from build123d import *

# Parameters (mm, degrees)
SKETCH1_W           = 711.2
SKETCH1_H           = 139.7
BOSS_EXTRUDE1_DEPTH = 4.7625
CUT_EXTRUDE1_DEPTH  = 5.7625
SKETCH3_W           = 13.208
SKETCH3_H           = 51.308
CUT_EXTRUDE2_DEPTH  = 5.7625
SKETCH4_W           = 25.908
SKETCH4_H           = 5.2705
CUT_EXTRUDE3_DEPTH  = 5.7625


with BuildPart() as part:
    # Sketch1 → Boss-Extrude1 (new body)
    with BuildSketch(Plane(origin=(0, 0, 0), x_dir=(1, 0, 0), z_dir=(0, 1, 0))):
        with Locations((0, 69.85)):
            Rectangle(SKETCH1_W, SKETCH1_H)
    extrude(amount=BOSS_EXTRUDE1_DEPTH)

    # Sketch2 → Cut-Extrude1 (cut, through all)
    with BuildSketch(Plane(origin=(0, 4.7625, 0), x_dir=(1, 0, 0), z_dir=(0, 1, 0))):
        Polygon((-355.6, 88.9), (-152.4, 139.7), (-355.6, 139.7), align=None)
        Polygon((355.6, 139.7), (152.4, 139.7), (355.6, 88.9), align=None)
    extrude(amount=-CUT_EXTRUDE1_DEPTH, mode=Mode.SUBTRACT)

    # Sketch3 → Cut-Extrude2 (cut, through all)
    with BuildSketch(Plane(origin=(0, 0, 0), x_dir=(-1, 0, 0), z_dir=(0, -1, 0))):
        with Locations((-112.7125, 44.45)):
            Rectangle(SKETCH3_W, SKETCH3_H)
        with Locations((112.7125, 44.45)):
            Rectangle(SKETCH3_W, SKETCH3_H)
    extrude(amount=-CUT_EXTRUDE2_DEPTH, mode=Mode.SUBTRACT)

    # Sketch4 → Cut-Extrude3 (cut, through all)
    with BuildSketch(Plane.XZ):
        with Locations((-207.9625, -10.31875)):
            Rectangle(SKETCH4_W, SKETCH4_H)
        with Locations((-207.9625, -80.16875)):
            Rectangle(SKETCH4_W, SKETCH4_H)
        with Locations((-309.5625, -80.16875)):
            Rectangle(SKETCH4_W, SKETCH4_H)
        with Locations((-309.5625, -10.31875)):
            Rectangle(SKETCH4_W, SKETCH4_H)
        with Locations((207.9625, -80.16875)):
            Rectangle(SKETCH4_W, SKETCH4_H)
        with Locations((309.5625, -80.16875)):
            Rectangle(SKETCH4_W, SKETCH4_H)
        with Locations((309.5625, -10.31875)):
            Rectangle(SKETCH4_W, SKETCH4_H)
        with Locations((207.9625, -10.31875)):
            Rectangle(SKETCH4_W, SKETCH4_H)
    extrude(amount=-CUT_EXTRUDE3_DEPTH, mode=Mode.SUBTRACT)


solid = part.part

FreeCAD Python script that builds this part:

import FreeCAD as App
import Part
import Sketcher
Q = App.Units.Quantity

doc = App.newDocument("Part")
body = doc.addObject("PartDesign::Body", "Body")

sketch1 = body.newObject("Sketcher::SketchObject", "Sketch")
sketch1.AttachmentSupport = (doc.getObject("XZ_Plane"), [""])
sketch1.MapMode = "FlatFace"
sketch1.addGeometry(Part.LineSegment(App.Vector(-355.6, -139.7, 0), App.Vector(-355.6, 0, 0)), False)
sketch1.addGeometry(Part.LineSegment(App.Vector(-355.6, 0, 0), App.Vector(355.6, 0, 0)), False)
sketch1.addGeometry(Part.LineSegment(App.Vector(355.6, 0, 0), App.Vector(355.6, -139.7, 0)), False)
sketch1.addGeometry(Part.LineSegment(App.Vector(355.6, -139.7, 0), App.Vector(-355.6, -139.7, 0)), False)
sketch1.addConstraint(Sketcher.Constraint("Coincident", 0, 2, 1, 1))
sketch1.addConstraint(Sketcher.Constraint("Coincident", 1, 2, 2, 1))
sketch1.addConstraint(Sketcher.Constraint("Coincident", 2, 2, 3, 1))
sketch1.addConstraint(Sketcher.Constraint("Coincident", 3, 2, 0, 1))
sketch1.addConstraint(Sketcher.Constraint("Vertical", 0))
sketch1.addConstraint(Sketcher.Constraint("Horizontal", 1))
sketch1.addConstraint(Sketcher.Constraint("Vertical", 2))
sketch1.addConstraint(Sketcher.Constraint("Horizontal", 3))
sketch1.addConstraint(Sketcher.Constraint("Symmetric", 0, 2, 1, 2, -1, 1))
sketch1.addConstraint(Sketcher.Constraint("DistanceX", 1, 1, 1, 2, Q("28 in")))
sketch1.addConstraint(Sketcher.Constraint("DistanceY", 0, 1, 0, 2, Q("5.5 in")))
pad1 = body.newObject("PartDesign::Pad", "Pad")
pad1.Profile = sketch1
pad1.Length = Q("0.1875 in")
pad1.Reversed = True

sketch2 = body.newObject("Sketcher::SketchObject", "Sketch001")
sketch2.AttachmentSupport = (doc.getObject("XZ_Plane"), [""])
sketch2.MapMode = "FlatFace"
sketch2.AttachmentOffset = App.Placement(App.Vector(0, 0, -0.1875 * 25.4), App.Rotation())
sketch2.addGeometry(Part.LineSegment(App.Vector(-355.6, -88.9, 0), App.Vector(-152.4, -139.7, 0)), False)
sketch2.addGeometry(Part.LineSegment(App.Vector(-152.4, -139.7, 0), App.Vector(-355.6, -139.7, 0)), False)
sketch2.addGeometry(Part.LineSegment(App.Vector(-355.6, -139.7, 0), App.Vector(-355.6, -88.9, 0)), False)
sketch2.addGeometry(Part.LineSegment(App.Vector(355.6, -139.7, 0), App.Vector(152.4, -139.7, 0)), False)
sketch2.addGeometry(Part.LineSegment(App.Vector(152.4, -139.7, 0), App.Vector(355.6, -88.9, 0)), False)
sketch2.addGeometry(Part.LineSegment(App.Vector(355.6, -88.9, 0), App.Vector(355.6, -139.7, 0)), False)
sketch2.addConstraint(Sketcher.Constraint("Coincident", 0, 2, 1, 1))
sketch2.addConstraint(Sketcher.Constraint("Coincident", 1, 2, 2, 1))
sketch2.addConstraint(Sketcher.Constraint("Coincident", 2, 2, 0, 1))
sketch2.addConstraint(Sketcher.Constraint("Coincident", 3, 2, 4, 1))
sketch2.addConstraint(Sketcher.Constraint("Coincident", 4, 2, 5, 1))
sketch2.addConstraint(Sketcher.Constraint("Coincident", 5, 2, 3, 1))
sketch2.addConstraint(Sketcher.Constraint("Horizontal", 1))
sketch2.addConstraint(Sketcher.Constraint("Vertical", 2))
sketch2.addConstraint(Sketcher.Constraint("Horizontal", 3))
sketch2.addConstraint(Sketcher.Constraint("Vertical", 5))
sketch2.addConstraint(Sketcher.Constraint("Symmetric", 0, 2, 3, 2, -2))
sketch2.addConstraint(Sketcher.Constraint("Symmetric", 2, 2, 4, 2, -2))
sketch2.addConstraint(Sketcher.Constraint("DistanceX", 1, 2, 1, 1, Q("8 in")))
sketch2.addConstraint(Sketcher.Constraint("DistanceY", 2, 1, 2, 2, Q("2 in")))
sketch2.addConstraint(Sketcher.Constraint("DistanceX", 0, 2, -1, 1, Q("6 in")))
sketch2.addConstraint(Sketcher.Constraint("DistanceY", 0, 2, -1, 1, Q("5.5 in")))
pocket1 = body.newObject("PartDesign::Pocket", "Pocket")
pocket1.Profile = sketch2
pocket1.Type = "ThroughAll"
pocket1.Reversed = True

sketch3 = body.newObject("Sketcher::SketchObject", "Sketch002")
sketch3.AttachmentSupport = (doc.getObject("XZ_Plane"), [""])
sketch3.MapMode = "FlatFace"
sketch3.addGeometry(Part.LineSegment(App.Vector(119.3165, -70.104, 0), App.Vector(119.3165, -18.796, 0)), False)
sketch3.addGeometry(Part.LineSegment(App.Vector(119.3165, -18.796, 0), App.Vector(106.1085, -18.796, 0)), False)
sketch3.addGeometry(Part.LineSegment(App.Vector(106.1085, -18.796, 0), App.Vector(106.1085, -70.104, 0)), False)
sketch3.addGeometry(Part.LineSegment(App.Vector(106.1085, -70.104, 0), App.Vector(119.3165, -70.104, 0)), False)
sketch3.addGeometry(Part.LineSegment(App.Vector(-106.1085, -70.104, 0), App.Vector(-106.1085, -18.796, 0)), False)
sketch3.addGeometry(Part.LineSegment(App.Vector(-106.1085, -18.796, 0), App.Vector(-119.3165, -18.796, 0)), False)
sketch3.addGeometry(Part.LineSegment(App.Vector(-119.3165, -18.796, 0), App.Vector(-119.3165, -70.104, 0)), False)
sketch3.addGeometry(Part.LineSegment(App.Vector(-119.3165, -70.104, 0), App.Vector(-106.1085, -70.104, 0)), False)
sketch3.addConstraint(Sketcher.Constraint("Coincident", 0, 2, 1, 1))
sketch3.addConstraint(Sketcher.Constraint("Coincident", 1, 2, 2, 1))
sketch3.addConstraint(Sketcher.Constraint("Coincident", 2, 2, 3, 1))
sketch3.addConstraint(Sketcher.Constraint("Coincident", 3, 2, 0, 1))
sketch3.addConstraint(Sketcher.Constraint("Coincident", 4, 2, 5, 1))
sketch3.addConstraint(Sketcher.Constraint("Coincident", 5, 2, 6, 1))
sketch3.addConstraint(Sketcher.Constraint("Coincident", 6, 2, 7, 1))
sketch3.addConstraint(Sketcher.Constraint("Coincident", 7, 2, 4, 1))
sketch3.addConstraint(Sketcher.Constraint("Vertical", 0))
sketch3.addConstraint(Sketcher.Constraint("Horizontal", 1))
sketch3.addConstraint(Sketcher.Constraint("Vertical", 2))
sketch3.addConstraint(Sketcher.Constraint("Horizontal", 3))
sketch3.addConstraint(Sketcher.Constraint("Vertical", 4))
sketch3.addConstraint(Sketcher.Constraint("Horizontal", 5))
sketch3.addConstraint(Sketcher.Constraint("Vertical", 6))
sketch3.addConstraint(Sketcher.Constraint("Horizontal", 7))
sketch3.addConstraint(Sketcher.Constraint("Symmetric", 1, 2, 4, 2, -2))
sketch3.addConstraint(Sketcher.Constraint("Symmetric", 3, 2, 6, 2, -2))
sketch3.addConstraint(Sketcher.Constraint("DistanceX", 1, 2, 1, 1, Q("0.52 in")))
sketch3.addConstraint(Sketcher.Constraint("DistanceY", 0, 1, 0, 2, Q("2.02 in")))
sketch3.addConstraint(Sketcher.Constraint("DistanceY", 0, 2, -1, 1, Q("0.74 in")))
sketch3.addConstraint(Sketcher.Constraint("DistanceX", 4, 2, 1, 2, Q("8.355 in")))
pocket2 = body.newObject("PartDesign::Pocket", "Pocket001")
pocket2.Profile = sketch3
pocket2.Type = "ThroughAll"

sketch4 = body.newObject("Sketcher::SketchObject", "Sketch003")
sketch4.AttachmentSupport = (doc.getObject("XZ_Plane"), [""])
sketch4.MapMode = "FlatFace"
sketch4.addGeometry(Part.LineSegment(App.Vector(-220.9165, -7.6835, 0), App.Vector(-220.9165, -12.954, 0)), False)
sketch4.addGeometry(Part.LineSegment(App.Vector(-220.9165, -12.954, 0), App.Vector(-195.0085, -12.954, 0)), False)
sketch4.addGeometry(Part.LineSegment(App.Vector(-195.0085, -12.954, 0), App.Vector(-195.0085, -7.6835, 0)), False)
sketch4.addGeometry(Part.LineSegment(App.Vector(-195.0085, -7.6835, 0), App.Vector(-220.9165, -7.6835, 0)), False)
sketch4.addGeometry(Part.LineSegment(App.Vector(-220.9165, -77.5335, 0), App.Vector(-220.9165, -82.804, 0)), False)
sketch4.addGeometry(Part.LineSegment(App.Vector(-220.9165, -82.804, 0), App.Vector(-195.0085, -82.804, 0)), False)
sketch4.addGeometry(Part.LineSegment(App.Vector(-195.0085, -82.804, 0), App.Vector(-195.0085, -77.5335, 0)), False)
sketch4.addGeometry(Part.LineSegment(App.Vector(-195.0085, -77.5335, 0), App.Vector(-220.9165, -77.5335, 0)), False)
sketch4.addGeometry(Part.LineSegment(App.Vector(-322.5165, -77.5335, 0), App.Vector(-322.5165, -82.804, 0)), False)
sketch4.addGeometry(Part.LineSegment(App.Vector(-322.5165, -82.804, 0), App.Vector(-296.6085, -82.804, 0)), False)
sketch4.addGeometry(Part.LineSegment(App.Vector(-296.6085, -82.804, 0), App.Vector(-296.6085, -77.5335, 0)), False)
sketch4.addGeometry(Part.LineSegment(App.Vector(-296.6085, -77.5335, 0), App.Vector(-322.5165, -77.5335, 0)), False)
sketch4.addGeometry(Part.LineSegment(App.Vector(-322.5165, -7.6835, 0), App.Vector(-322.5165, -12.954, 0)), False)
sketch4.addGeometry(Part.LineSegment(App.Vector(-322.5165, -12.954, 0), App.Vector(-296.6085, -12.954, 0)), False)
sketch4.addGeometry(Part.LineSegment(App.Vector(-296.6085, -12.954, 0), App.Vector(-296.6085, -7.6835, 0)), False)
sketch4.addGeometry(Part.LineSegment(App.Vector(-296.6085, -7.6835, 0), App.Vector(-322.5165, -7.6835, 0)), False)
sketch4.addGeometry(Part.LineSegment(App.Vector(195.0085, -77.5335, 0), App.Vector(195.0085, -82.804, 0)), False)
sketch4.addGeometry(Part.LineSegment(App.Vector(195.0085, -82.804, 0), App.Vector(220.9165, -82.804, 0)), False)
sketch4.addGeometry(Part.LineSegment(App.Vector(220.9165, -82.804, 0), App.Vector(220.9165, -77.5335, 0)), False)
sketch4.addGeometry(Part.LineSegment(App.Vector(220.9165, -77.5335, 0), App.Vector(195.0085, -77.5335, 0)), False)
sketch4.addGeometry(Part.LineSegment(App.Vector(296.6085, -77.5335, 0), App.Vector(296.6085, -82.804, 0)), False)
sketch4.addGeometry(Part.LineSegment(App.Vector(296.6085, -82.804, 0), App.Vector(322.5165, -82.804, 0)), False)
sketch4.addGeometry(Part.LineSegment(App.Vector(322.5165, -82.804, 0), App.Vector(322.5165, -77.5335, 0)), False)
sketch4.addGeometry(Part.LineSegment(App.Vector(322.5165, -77.5335, 0), App.Vector(296.6085, -77.5335, 0)), False)
sketch4.addGeometry(Part.LineSegment(App.Vector(296.6085, -7.6835, 0), App.Vector(296.6085, -12.954, 0)), False)
sketch4.addGeometry(Part.LineSegment(App.Vector(296.6085, -12.954, 0), App.Vector(322.5165, -12.954, 0)), False)
sketch4.addGeometry(Part.LineSegment(App.Vector(322.5165, -12.954, 0), App.Vector(322.5165, -7.6835, 0)), False)
sketch4.addGeometry(Part.LineSegment(App.Vector(322.5165, -7.6835, 0), App.Vector(296.6085, -7.6835, 0)), False)
sketch4.addGeometry(Part.LineSegment(App.Vector(195.0085, -7.6835, 0), App.Vector(195.0085, -12.954, 0)), False)
sketch4.addGeometry(Part.LineSegment(App.Vector(195.0085, -12.954, 0), App.Vector(220.9165, -12.954, 0)), False)
sketch4.addGeometry(Part.LineSegment(App.Vector(220.9165, -12.954, 0), App.Vector(220.9165, -7.6835, 0)), False)
sketch4.addGeometry(Part.LineSegment(App.Vector(220.9165, -7.6835, 0), App.Vector(195.0085, -7.6835, 0)), False)
sketch4.addConstraint(Sketcher.Constraint("Coincident", 0, 2, 1, 1))
sketch4.addConstraint(Sketcher.Constraint("Coincident", 1, 2, 2, 1))
sketch4.addConstraint(Sketcher.Constraint("Coincident", 2, 2, 3, 1))
sketch4.addConstraint(Sketcher.Constraint("Coincident", 3, 2, 0, 1))
sketch4.addConstraint(Sketcher.Constraint("Coincident", 4, 2, 5, 1))
sketch4.addConstraint(Sketcher.Constraint("Coincident", 5, 2, 6, 1))
sketch4.addConstraint(Sketcher.Constraint("Coincident", 6, 2, 7, 1))
sketch4.addConstraint(Sketcher.Constraint("Coincident", 7, 2, 4, 1))
sketch4.addConstraint(Sketcher.Constraint("Coincident", 8, 2, 9, 1))
sketch4.addConstraint(Sketcher.Constraint("Coincident", 9, 2, 10, 1))
sketch4.addConstraint(Sketcher.Constraint("Coincident", 10, 2, 11, 1))
sketch4.addConstraint(Sketcher.Constraint("Coincident", 11, 2, 8, 1))
sketch4.addConstraint(Sketcher.Constraint("Coincident", 12, 2, 13, 1))
sketch4.addConstraint(Sketcher.Constraint("Coincident", 13, 2, 14, 1))
sketch4.addConstraint(Sketcher.Constraint("Coincident", 14, 2, 15, 1))
sketch4.addConstraint(Sketcher.Constraint("Coincident", 15, 2, 12, 1))
sketch4.addConstraint(Sketcher.Constraint("Coincident", 16, 2, 17, 1))
sketch4.addConstraint(Sketcher.Constraint("Coincident", 17, 2, 18, 1))
sketch4.addConstraint(Sketcher.Constraint("Coincident", 18, 2, 19, 1))
sketch4.addConstraint(Sketcher.Constraint("Coincident", 19, 2, 16, 1))
sketch4.addConstraint(Sketcher.Constraint("Coincident", 20, 2, 21, 1))
sketch4.addConstraint(Sketcher.Constraint("Coincident", 21, 2, 22, 1))
sketch4.addConstraint(Sketcher.Constraint("Coincident", 22, 2, 23, 1))
sketch4.addConstraint(Sketcher.Constraint("Coincident", 23, 2, 20, 1))
sketch4.addConstraint(Sketcher.Constraint("Coincident", 24, 2, 25, 1))
sketch4.addConstraint(Sketcher.Constraint("Coincident", 25, 2, 26, 1))
sketch4.addConstraint(Sketcher.Constraint("Coincident", 26, 2, 27, 1))
sketch4.addConstraint(Sketcher.Constraint("Coincident", 27, 2, 24, 1))
sketch4.addConstraint(Sketcher.Constraint("Coincident", 28, 2, 29, 1))
sketch4.addConstraint(Sketcher.Constraint("Coincident", 29, 2, 30, 1))
sketch4.addConstraint(Sketcher.Constraint("Coincident", 30, 2, 31, 1))
sketch4.addConstraint(Sketcher.Constraint("Coincident", 31, 2, 28, 1))
sketch4.addConstraint(Sketcher.Constraint("Vertical", 0))
sketch4.addConstraint(Sketcher.Constraint("Horizontal", 1))
sketch4.addConstraint(Sketcher.Constraint("Vertical", 2))
sketch4.addConstraint(Sketcher.Constraint("Horizontal", 3))
sketch4.addConstraint(Sketcher.Constraint("Vertical", 4))
sketch4.addConstraint(Sketcher.Constraint("Horizontal", 5))
sketch4.addConstraint(Sketcher.Constraint("Vertical", 6))
sketch4.addConstraint(Sketcher.Constraint("Horizontal", 7))
sketch4.addConstraint(Sketcher.Constraint("Vertical", 8))
sketch4.addConstraint(Sketcher.Constraint("Horizontal", 9))
sketch4.addConstraint(Sketcher.Constraint("Vertical", 10))
sketch4.addConstraint(Sketcher.Constraint("Horizontal", 11))
sketch4.addConstraint(Sketcher.Constraint("Vertical", 12))
sketch4.addConstraint(Sketcher.Constraint("Horizontal", 13))
sketch4.addConstraint(Sketcher.Constraint("Vertical", 14))
sketch4.addConstraint(Sketcher.Constraint("Horizontal", 15))
sketch4.addConstraint(Sketcher.Constraint("Vertical", 16))
sketch4.addConstraint(Sketcher.Constraint("Horizontal", 17))
sketch4.addConstraint(Sketcher.Constraint("Vertical", 18))
sketch4.addConstraint(Sketcher.Constraint("Horizontal", 19))
sketch4.addConstraint(Sketcher.Constraint("Vertical", 20))
sketch4.addConstraint(Sketcher.Constraint("Horizontal", 21))
sketch4.addConstraint(Sketcher.Constraint("Vertical", 22))
sketch4.addConstraint(Sketcher.Constraint("Horizontal", 23))
sketch4.addConstraint(Sketcher.Constraint("Vertical", 24))
sketch4.addConstraint(Sketcher.Constraint("Horizontal", 25))
sketch4.addConstraint(Sketcher.Constraint("Vertical", 26))
sketch4.addConstraint(Sketcher.Constraint("Horizontal", 27))
sketch4.addConstraint(Sketcher.Constraint("Vertical", 28))
sketch4.addConstraint(Sketcher.Constraint("Horizontal", 29))
sketch4.addConstraint(Sketcher.Constraint("Vertical", 30))
sketch4.addConstraint(Sketcher.Constraint("Horizontal", 31))
sketch4.addConstraint(Sketcher.Constraint("Symmetric", 5, 2, 16, 2, -2))
sketch4.addConstraint(Sketcher.Constraint("Symmetric", 7, 2, 18, 2, -2))
sketch4.addConstraint(Sketcher.Constraint("Symmetric", 9, 2, 20, 2, -2))
sketch4.addConstraint(Sketcher.Constraint("Symmetric", 11, 2, 22, 2, -2))
sketch4.addConstraint(Sketcher.Constraint("Symmetric", 13, 2, 24, 2, -2))
sketch4.addConstraint(Sketcher.Constraint("Symmetric", 15, 2, 26, 2, -2))
sketch4.addConstraint(Sketcher.Constraint("Symmetric", 1, 2, 28, 2, -2))
sketch4.addConstraint(Sketcher.Constraint("Symmetric", 3, 2, 30, 2, -2))
sketch4.addConstraint(Sketcher.Constraint("Horizontal", 5, 2, 8, 2))
sketch4.addConstraint(Sketcher.Constraint("Horizontal", 7, 2, 10, 2))
sketch4.addConstraint(Sketcher.Constraint("Horizontal", 1, 2, 12, 2))
sketch4.addConstraint(Sketcher.Constraint("Horizontal", 3, 2, 14, 2))
sketch4.addConstraint(Sketcher.Constraint("Vertical", 3, 2, 4, 2))
sketch4.addConstraint(Sketcher.Constraint("Vertical", 2, 2, 5, 2))
sketch4.addConstraint(Sketcher.Constraint("Vertical", 11, 2, 12, 2))
sketch4.addConstraint(Sketcher.Constraint("Vertical", 10, 2, 13, 2))
sketch4.addConstraint(Sketcher.Constraint("Equal", 7, 9))
sketch4.addConstraint(Sketcher.Constraint("Equal", 2, 4))
sketch4.addConstraint(Sketcher.Constraint("DistanceX", 8, 2, 4, 2, Q("4 in")))
sketch4.addConstraint(Sketcher.Constraint("DistanceX", 1, 1, 1, 2, Q("1.02 in")))
sketch4.addConstraint(Sketcher.Constraint("DistanceY", 0, 2, -1, 1, Q("0.51 in")))
sketch4.addConstraint(Sketcher.Constraint("DistanceY", 4, 2, -1, 1, Q("3.26 in")))
sketch4.addConstraint(Sketcher.Constraint("DistanceY", 0, 2, 0, 1, Q("0.2075 in")))
sketch4.addConstraint(Sketcher.Constraint("DistanceX", 5, 2, 16, 2, Q("15.355 in")))
pocket3 = body.newObject("PartDesign::Pocket", "Pocket002")
pocket3.Profile = sketch4
pocket3.Type = "ThroughAll"

doc.recompute()
